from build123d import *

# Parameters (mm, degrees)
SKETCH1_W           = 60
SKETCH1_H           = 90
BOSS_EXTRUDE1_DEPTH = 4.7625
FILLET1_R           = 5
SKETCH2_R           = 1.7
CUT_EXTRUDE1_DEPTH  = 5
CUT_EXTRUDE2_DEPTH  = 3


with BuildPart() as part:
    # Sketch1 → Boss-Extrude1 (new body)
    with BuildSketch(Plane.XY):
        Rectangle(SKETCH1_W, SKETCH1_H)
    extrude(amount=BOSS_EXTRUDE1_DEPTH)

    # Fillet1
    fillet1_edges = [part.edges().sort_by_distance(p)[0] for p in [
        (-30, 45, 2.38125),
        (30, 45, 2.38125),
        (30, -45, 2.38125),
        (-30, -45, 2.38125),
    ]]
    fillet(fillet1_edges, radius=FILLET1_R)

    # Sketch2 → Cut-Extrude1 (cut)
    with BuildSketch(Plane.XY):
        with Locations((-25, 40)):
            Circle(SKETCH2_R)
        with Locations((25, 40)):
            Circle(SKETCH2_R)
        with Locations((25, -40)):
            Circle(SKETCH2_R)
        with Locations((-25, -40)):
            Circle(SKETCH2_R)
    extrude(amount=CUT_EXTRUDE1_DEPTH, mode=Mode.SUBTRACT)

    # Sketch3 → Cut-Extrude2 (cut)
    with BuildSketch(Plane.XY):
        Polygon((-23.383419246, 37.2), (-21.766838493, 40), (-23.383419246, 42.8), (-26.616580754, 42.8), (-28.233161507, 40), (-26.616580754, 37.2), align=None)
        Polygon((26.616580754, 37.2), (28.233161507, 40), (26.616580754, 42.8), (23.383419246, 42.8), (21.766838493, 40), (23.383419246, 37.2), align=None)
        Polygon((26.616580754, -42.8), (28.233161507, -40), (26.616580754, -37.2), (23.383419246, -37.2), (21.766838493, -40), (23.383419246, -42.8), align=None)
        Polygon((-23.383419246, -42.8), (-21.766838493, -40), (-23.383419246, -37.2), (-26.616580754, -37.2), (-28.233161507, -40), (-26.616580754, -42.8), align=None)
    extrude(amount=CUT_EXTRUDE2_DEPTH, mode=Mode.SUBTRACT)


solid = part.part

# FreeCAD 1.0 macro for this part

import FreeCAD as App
import Part
import Sketcher
from FreeCAD import Vector
Q = App.Units.Quantity


def edges_at(feature, points):
    """Names of the edges that pass closest to the given points."""
    edges = feature.Shape.Edges
    near = lambda p: min(range(len(edges)), key=lambda i: edges[i].distToShape(Part.Vertex(*p))[0])
    return sorted({f"Edge{near(p) + 1}" for p in points})

doc = App.newDocument("Part")
body = doc.addObject("PartDesign::Body", "Body")

# Sketch on XY plane
sketch1 = body.newObject("Sketcher::SketchObject", "Sketch")
sketch1.AttachmentSupport = (doc.getObject("XY_Plane"), [""])
sketch1.MapMode = "FlatFace"
sketch1.addGeometry([
    Part.LineSegment(Vector(-30, 45, 0), Vector(-30, -45, 0)),
    Part.LineSegment(Vector(-30, -45, 0), Vector(30, -45, 0)),
    Part.LineSegment(Vector(30, -45, 0), Vector(30, 45, 0)),
    Part.LineSegment(Vector(30, 45, 0), Vector(-30, 45, 0)),
], False)
sketch1.addConstraint([
    Sketcher.Constraint("Coincident", 0, 2, 1, 1),
    Sketcher.Constraint("Coincident", 1, 2, 2, 1),
    Sketcher.Constraint("Coincident", 2, 2, 3, 1),
    Sketcher.Constraint("Coincident", 3, 2, 0, 1),
    Sketcher.Constraint("Vertical", 0),
    Sketcher.Constraint("Horizontal", 1),
    Sketcher.Constraint("Vertical", 2),
    Sketcher.Constraint("Horizontal", 3),
    Sketcher.Constraint("Symmetric", 0, 2, 2, 2, -1, 1),
    Sketcher.Constraint("DistanceX", 1, 1, 1, 2, 60.0),
    Sketcher.Constraint("DistanceY", 0, 2, 0, 1, 90.0),
])
pad1 = body.newObject("PartDesign::Pad", "Pad")
pad1.Profile = sketch1
pad1.Length = 4.7625
doc.recompute()

fillet = body.newObject("PartDesign::Fillet", "Fillet")
fillet.Base = (pad1, edges_at(pad1, [
    (-30, 45, 2.381),
    (30, 45, 2.381),
    (30, -45, 2.381),
    (-30, -45, 2.381),
]))
fillet.Radius = 5

# Sketch on XY plane
sketch2 = body.newObject("Sketcher::SketchObject", "Sketch001")
sketch2.AttachmentSupport = (doc.getObject("XY_Plane"), [""])
sketch2.MapMode = "FlatFace"
sketch2.addGeometry([
    Part.Circle(Vector(-25, 40, 0), Vector(0, 0, 1), 1.7),
    Part.Circle(Vector(25, 40, 0), Vector(0, 0, 1), 1.7),
    Part.Circle(Vector(25, -40, 0), Vector(0, 0, 1), 1.7),
    Part.Circle(Vector(-25, -40, 0), Vector(0, 0, 1), 1.7),
], False)
sketch2.addConstraint([
    Sketcher.Constraint("Equal", 0, 1),
    Sketcher.Constraint("Equal", 1, 2),
    Sketcher.Constraint("Equal", 2, 3),
    Sketcher.Constraint("Symmetric", 0, 3, 2, 3, -1, 1),
    Sketcher.Constraint("Symmetric", 1, 3, 3, 3, -1, 1),
    Sketcher.Constraint("Symmetric", 0, 3, 1, 3, -2),
    Sketcher.Constraint("Diameter", 0, 3.4),
    Sketcher.Constraint("DistanceX", 0, 3, -1, 1, 25.0),
    Sketcher.Constraint("DistanceY", -1, 1, 0, 3, 40.0),
])
pocket1 = body.newObject("PartDesign::Pocket", "Pocket")
pocket1.Profile = sketch2
pocket1.Length = 5
pocket1.Reversed = True

# Sketch on XY plane
sketch3 = body.newObject("Sketcher::SketchObject", "Sketch002")
sketch3.AttachmentSupport = (doc.getObject("XY_Plane"), [""])
sketch3.MapMode = "FlatFace"
sketch3.addGeometry([
    Part.LineSegment(Vector(-23.383419, 37.2, 0), Vector(-21.766838, 40, 0)),  # 0
    Part.LineSegment(Vector(-21.766838, 40, 0), Vector(-23.383419, 42.8, 0)),  # 1
    Part.LineSegment(Vector(-23.383419, 42.8, 0), Vector(-26.616581, 42.8, 0)),  # 2
    Part.LineSegment(Vector(-26.616581, 42.8, 0), Vector(-28.233162, 40, 0)),  # 3
    Part.LineSegment(Vector(-28.233162, 40, 0), Vector(-26.616581, 37.2, 0)),  # 4
    Part.LineSegment(Vector(-26.616581, 37.2, 0), Vector(-23.383419, 37.2, 0)),  # 5
    Part.LineSegment(Vector(26.616581, 37.2, 0), Vector(28.233162, 40, 0)),  # 6
    Part.LineSegment(Vector(28.233162, 40, 0), Vector(26.616581, 42.8, 0)),  # 7
    Part.LineSegment(Vector(26.616581, 42.8, 0), Vector(23.383419, 42.8, 0)),  # 8
    Part.LineSegment(Vector(23.383419, 42.8, 0), Vector(21.766838, 40, 0)),  # 9
    Part.LineSegment(Vector(21.766838, 40, 0), Vector(23.383419, 37.2, 0)),  # 10
    Part.LineSegment(Vector(23.383419, 37.2, 0), Vector(26.616581, 37.2, 0)),  # 11
    Part.LineSegment(Vector(26.616581, -42.8, 0), Vector(28.233162, -40, 0)),  # 12
    Part.LineSegment(Vector(28.233162, -40, 0), Vector(26.616581, -37.2, 0)),  # 13
    Part.LineSegment(Vector(26.616581, -37.2, 0), Vector(23.383419, -37.2, 0)),  # 14
    Part.LineSegment(Vector(23.383419, -37.2, 0), Vector(21.766838, -40, 0)),  # 15
    Part.LineSegment(Vector(21.766838, -40, 0), Vector(23.383419, -42.8, 0)),  # 16
    Part.LineSegment(Vector(23.383419, -42.8, 0), Vector(26.616581, -42.8, 0)),  # 17
    Part.LineSegment(Vector(-23.383419, -42.8, 0), Vector(-21.766838, -40, 0)),  # 18
    Part.LineSegment(Vector(-21.766838, -40, 0), Vector(-23.383419, -37.2, 0)),  # 19
    Part.LineSegment(Vector(-23.383419, -37.2, 0), Vector(-26.616581, -37.2, 0)),  # 20
    Part.LineSegment(Vector(-26.616581, -37.2, 0), Vector(-28.233162, -40, 0)),  # 21
    Part.LineSegment(Vector(-28.233162, -40, 0), Vector(-26.616581, -42.8, 0)),  # 22
    Part.LineSegment(Vector(-26.616581, -42.8, 0), Vector(-23.383419, -42.8, 0)),  # 23
], False)
sketch3.addConstraint([
    Sketcher.Constraint("Coincident", 0, 2, 1, 1),
    Sketcher.Constraint("Coincident", 1, 2, 2, 1),
    Sketcher.Constraint("Coincident", 2, 2, 3, 1),
    Sketcher.Constraint("Coincident", 3, 2, 4, 1),
    Sketcher.Constraint("Coincident", 4, 2, 5, 1),
    Sketcher.Constraint("Coincident", 5, 2, 0, 1),
    Sketcher.Constraint("Coincident", 6, 2, 7, 1),
    Sketcher.Constraint("Coincident", 7, 2, 8, 1),
    Sketcher.Constraint("Coincident", 8, 2, 9, 1),
    Sketcher.Constraint("Coincident", 9, 2, 10, 1),
    Sketcher.Constraint("Coincident", 10, 2, 11, 1),
    Sketcher.Constraint("Coincident", 11, 2, 6, 1),
    Sketcher.Constraint("Coincident", 12, 2, 13, 1),
    Sketcher.Constraint("Coincident", 13, 2, 14, 1),
    Sketcher.Constraint("Coincident", 14, 2, 15, 1),
    Sketcher.Constraint("Coincident", 15, 2, 16, 1),
    Sketcher.Constraint("Coincident", 16, 2, 17, 1),
    Sketcher.Constraint("Coincident", 17, 2, 12, 1),
    Sketcher.Constraint("Coincident", 18, 2, 19, 1),
    Sketcher.Constraint("Coincident", 19, 2, 20, 1),
    Sketcher.Constraint("Coincident", 20, 2, 21, 1),
    Sketcher.Constraint("Coincident", 21, 2, 22, 1),
    Sketcher.Constraint("Coincident", 22, 2, 23, 1),
    Sketcher.Constraint("Coincident", 23, 2, 18, 1),
    Sketcher.Constraint("Horizontal", 2),
    Sketcher.Constraint("Horizontal", 5),
    Sketcher.Constraint("Horizontal", 8),
    Sketcher.Constraint("Horizontal", 11),
    Sketcher.Constraint("Horizontal", 14),
    Sketcher.Constraint("Horizontal", 17),
    Sketcher.Constraint("Horizontal", 20),
    Sketcher.Constraint("Horizontal", 23),
    Sketcher.Constraint("Symmetric", 3, 2, 12, 2, -1, 1),
    Sketcher.Constraint("Symmetric", 4, 2, 13, 2, -1, 1),
    Sketcher.Constraint("Symmetric", 0, 2, 15, 2, -1, 1),
    Sketcher.Constraint("Symmetric", 1, 2, 16, 2, -1, 1),
    Sketcher.Constraint("Symmetric", 9, 2, 18, 2, -1, 1),
    Sketcher.Constraint("Symmetric", 10, 2, 19, 2, -1, 1),
    Sketcher.Constraint("Symmetric", 6, 2, 21, 2, -1, 1),
    Sketcher.Constraint("Symmetric", 7, 2, 22, 2, -1, 1),
    Sketcher.Constraint("Symmetric", 3, 2, 6, 2, -2),
    Sketcher.Constraint("Symmetric", 2, 2, 7, 2, -2),
    Sketcher.Constraint("Symmetric", 0, 2, 9, 2, -2),
    Sketcher.Constraint("Symmetric", 5, 2, 10, 2, -2),
    Sketcher.Constraint("Parallel", 0, 3),
    Sketcher.Constraint("Parallel", 1, 4),
    Sketcher.Constraint("Parallel", 3, 6),
    Sketcher.Constraint("Parallel", 4, 7),
    Sketcher.Constraint("Parallel", 6, 9),
    Sketcher.Constraint("Parallel", 9, 12),
    Sketcher.Constraint("Parallel", 12, 15),
    Sketcher.Constraint("Parallel", 15, 18),
    Sketcher.Constraint("Parallel", 18, 21),
    Sketcher.Constraint("Horizontal", 0, 2, 3, 2),
    Sketcher.Constraint("Vertical", 2, 2, 4, 2),
    Sketcher.Constraint("Angle", 0, Q("60 deg")),
    Sketcher.Constraint("DistanceY", -1, 1, 0, 2, 40.0),
    Sketcher.Constraint("DistanceX", 0, 2, 6, 2, 50.0),
    Sketcher.Constraint("DistanceY", -1, 1, 1, 2, 42.8),
    Sketcher.Constraint("DistanceX", 2, 2, 2, 1, 3.233162),
])
pocket2 = body.newObject("PartDesign::Pocket", "Pocket001")
pocket2.Profile = sketch3
pocket2.Length = 3
pocket2.Reversed = True

doc.recompute()
